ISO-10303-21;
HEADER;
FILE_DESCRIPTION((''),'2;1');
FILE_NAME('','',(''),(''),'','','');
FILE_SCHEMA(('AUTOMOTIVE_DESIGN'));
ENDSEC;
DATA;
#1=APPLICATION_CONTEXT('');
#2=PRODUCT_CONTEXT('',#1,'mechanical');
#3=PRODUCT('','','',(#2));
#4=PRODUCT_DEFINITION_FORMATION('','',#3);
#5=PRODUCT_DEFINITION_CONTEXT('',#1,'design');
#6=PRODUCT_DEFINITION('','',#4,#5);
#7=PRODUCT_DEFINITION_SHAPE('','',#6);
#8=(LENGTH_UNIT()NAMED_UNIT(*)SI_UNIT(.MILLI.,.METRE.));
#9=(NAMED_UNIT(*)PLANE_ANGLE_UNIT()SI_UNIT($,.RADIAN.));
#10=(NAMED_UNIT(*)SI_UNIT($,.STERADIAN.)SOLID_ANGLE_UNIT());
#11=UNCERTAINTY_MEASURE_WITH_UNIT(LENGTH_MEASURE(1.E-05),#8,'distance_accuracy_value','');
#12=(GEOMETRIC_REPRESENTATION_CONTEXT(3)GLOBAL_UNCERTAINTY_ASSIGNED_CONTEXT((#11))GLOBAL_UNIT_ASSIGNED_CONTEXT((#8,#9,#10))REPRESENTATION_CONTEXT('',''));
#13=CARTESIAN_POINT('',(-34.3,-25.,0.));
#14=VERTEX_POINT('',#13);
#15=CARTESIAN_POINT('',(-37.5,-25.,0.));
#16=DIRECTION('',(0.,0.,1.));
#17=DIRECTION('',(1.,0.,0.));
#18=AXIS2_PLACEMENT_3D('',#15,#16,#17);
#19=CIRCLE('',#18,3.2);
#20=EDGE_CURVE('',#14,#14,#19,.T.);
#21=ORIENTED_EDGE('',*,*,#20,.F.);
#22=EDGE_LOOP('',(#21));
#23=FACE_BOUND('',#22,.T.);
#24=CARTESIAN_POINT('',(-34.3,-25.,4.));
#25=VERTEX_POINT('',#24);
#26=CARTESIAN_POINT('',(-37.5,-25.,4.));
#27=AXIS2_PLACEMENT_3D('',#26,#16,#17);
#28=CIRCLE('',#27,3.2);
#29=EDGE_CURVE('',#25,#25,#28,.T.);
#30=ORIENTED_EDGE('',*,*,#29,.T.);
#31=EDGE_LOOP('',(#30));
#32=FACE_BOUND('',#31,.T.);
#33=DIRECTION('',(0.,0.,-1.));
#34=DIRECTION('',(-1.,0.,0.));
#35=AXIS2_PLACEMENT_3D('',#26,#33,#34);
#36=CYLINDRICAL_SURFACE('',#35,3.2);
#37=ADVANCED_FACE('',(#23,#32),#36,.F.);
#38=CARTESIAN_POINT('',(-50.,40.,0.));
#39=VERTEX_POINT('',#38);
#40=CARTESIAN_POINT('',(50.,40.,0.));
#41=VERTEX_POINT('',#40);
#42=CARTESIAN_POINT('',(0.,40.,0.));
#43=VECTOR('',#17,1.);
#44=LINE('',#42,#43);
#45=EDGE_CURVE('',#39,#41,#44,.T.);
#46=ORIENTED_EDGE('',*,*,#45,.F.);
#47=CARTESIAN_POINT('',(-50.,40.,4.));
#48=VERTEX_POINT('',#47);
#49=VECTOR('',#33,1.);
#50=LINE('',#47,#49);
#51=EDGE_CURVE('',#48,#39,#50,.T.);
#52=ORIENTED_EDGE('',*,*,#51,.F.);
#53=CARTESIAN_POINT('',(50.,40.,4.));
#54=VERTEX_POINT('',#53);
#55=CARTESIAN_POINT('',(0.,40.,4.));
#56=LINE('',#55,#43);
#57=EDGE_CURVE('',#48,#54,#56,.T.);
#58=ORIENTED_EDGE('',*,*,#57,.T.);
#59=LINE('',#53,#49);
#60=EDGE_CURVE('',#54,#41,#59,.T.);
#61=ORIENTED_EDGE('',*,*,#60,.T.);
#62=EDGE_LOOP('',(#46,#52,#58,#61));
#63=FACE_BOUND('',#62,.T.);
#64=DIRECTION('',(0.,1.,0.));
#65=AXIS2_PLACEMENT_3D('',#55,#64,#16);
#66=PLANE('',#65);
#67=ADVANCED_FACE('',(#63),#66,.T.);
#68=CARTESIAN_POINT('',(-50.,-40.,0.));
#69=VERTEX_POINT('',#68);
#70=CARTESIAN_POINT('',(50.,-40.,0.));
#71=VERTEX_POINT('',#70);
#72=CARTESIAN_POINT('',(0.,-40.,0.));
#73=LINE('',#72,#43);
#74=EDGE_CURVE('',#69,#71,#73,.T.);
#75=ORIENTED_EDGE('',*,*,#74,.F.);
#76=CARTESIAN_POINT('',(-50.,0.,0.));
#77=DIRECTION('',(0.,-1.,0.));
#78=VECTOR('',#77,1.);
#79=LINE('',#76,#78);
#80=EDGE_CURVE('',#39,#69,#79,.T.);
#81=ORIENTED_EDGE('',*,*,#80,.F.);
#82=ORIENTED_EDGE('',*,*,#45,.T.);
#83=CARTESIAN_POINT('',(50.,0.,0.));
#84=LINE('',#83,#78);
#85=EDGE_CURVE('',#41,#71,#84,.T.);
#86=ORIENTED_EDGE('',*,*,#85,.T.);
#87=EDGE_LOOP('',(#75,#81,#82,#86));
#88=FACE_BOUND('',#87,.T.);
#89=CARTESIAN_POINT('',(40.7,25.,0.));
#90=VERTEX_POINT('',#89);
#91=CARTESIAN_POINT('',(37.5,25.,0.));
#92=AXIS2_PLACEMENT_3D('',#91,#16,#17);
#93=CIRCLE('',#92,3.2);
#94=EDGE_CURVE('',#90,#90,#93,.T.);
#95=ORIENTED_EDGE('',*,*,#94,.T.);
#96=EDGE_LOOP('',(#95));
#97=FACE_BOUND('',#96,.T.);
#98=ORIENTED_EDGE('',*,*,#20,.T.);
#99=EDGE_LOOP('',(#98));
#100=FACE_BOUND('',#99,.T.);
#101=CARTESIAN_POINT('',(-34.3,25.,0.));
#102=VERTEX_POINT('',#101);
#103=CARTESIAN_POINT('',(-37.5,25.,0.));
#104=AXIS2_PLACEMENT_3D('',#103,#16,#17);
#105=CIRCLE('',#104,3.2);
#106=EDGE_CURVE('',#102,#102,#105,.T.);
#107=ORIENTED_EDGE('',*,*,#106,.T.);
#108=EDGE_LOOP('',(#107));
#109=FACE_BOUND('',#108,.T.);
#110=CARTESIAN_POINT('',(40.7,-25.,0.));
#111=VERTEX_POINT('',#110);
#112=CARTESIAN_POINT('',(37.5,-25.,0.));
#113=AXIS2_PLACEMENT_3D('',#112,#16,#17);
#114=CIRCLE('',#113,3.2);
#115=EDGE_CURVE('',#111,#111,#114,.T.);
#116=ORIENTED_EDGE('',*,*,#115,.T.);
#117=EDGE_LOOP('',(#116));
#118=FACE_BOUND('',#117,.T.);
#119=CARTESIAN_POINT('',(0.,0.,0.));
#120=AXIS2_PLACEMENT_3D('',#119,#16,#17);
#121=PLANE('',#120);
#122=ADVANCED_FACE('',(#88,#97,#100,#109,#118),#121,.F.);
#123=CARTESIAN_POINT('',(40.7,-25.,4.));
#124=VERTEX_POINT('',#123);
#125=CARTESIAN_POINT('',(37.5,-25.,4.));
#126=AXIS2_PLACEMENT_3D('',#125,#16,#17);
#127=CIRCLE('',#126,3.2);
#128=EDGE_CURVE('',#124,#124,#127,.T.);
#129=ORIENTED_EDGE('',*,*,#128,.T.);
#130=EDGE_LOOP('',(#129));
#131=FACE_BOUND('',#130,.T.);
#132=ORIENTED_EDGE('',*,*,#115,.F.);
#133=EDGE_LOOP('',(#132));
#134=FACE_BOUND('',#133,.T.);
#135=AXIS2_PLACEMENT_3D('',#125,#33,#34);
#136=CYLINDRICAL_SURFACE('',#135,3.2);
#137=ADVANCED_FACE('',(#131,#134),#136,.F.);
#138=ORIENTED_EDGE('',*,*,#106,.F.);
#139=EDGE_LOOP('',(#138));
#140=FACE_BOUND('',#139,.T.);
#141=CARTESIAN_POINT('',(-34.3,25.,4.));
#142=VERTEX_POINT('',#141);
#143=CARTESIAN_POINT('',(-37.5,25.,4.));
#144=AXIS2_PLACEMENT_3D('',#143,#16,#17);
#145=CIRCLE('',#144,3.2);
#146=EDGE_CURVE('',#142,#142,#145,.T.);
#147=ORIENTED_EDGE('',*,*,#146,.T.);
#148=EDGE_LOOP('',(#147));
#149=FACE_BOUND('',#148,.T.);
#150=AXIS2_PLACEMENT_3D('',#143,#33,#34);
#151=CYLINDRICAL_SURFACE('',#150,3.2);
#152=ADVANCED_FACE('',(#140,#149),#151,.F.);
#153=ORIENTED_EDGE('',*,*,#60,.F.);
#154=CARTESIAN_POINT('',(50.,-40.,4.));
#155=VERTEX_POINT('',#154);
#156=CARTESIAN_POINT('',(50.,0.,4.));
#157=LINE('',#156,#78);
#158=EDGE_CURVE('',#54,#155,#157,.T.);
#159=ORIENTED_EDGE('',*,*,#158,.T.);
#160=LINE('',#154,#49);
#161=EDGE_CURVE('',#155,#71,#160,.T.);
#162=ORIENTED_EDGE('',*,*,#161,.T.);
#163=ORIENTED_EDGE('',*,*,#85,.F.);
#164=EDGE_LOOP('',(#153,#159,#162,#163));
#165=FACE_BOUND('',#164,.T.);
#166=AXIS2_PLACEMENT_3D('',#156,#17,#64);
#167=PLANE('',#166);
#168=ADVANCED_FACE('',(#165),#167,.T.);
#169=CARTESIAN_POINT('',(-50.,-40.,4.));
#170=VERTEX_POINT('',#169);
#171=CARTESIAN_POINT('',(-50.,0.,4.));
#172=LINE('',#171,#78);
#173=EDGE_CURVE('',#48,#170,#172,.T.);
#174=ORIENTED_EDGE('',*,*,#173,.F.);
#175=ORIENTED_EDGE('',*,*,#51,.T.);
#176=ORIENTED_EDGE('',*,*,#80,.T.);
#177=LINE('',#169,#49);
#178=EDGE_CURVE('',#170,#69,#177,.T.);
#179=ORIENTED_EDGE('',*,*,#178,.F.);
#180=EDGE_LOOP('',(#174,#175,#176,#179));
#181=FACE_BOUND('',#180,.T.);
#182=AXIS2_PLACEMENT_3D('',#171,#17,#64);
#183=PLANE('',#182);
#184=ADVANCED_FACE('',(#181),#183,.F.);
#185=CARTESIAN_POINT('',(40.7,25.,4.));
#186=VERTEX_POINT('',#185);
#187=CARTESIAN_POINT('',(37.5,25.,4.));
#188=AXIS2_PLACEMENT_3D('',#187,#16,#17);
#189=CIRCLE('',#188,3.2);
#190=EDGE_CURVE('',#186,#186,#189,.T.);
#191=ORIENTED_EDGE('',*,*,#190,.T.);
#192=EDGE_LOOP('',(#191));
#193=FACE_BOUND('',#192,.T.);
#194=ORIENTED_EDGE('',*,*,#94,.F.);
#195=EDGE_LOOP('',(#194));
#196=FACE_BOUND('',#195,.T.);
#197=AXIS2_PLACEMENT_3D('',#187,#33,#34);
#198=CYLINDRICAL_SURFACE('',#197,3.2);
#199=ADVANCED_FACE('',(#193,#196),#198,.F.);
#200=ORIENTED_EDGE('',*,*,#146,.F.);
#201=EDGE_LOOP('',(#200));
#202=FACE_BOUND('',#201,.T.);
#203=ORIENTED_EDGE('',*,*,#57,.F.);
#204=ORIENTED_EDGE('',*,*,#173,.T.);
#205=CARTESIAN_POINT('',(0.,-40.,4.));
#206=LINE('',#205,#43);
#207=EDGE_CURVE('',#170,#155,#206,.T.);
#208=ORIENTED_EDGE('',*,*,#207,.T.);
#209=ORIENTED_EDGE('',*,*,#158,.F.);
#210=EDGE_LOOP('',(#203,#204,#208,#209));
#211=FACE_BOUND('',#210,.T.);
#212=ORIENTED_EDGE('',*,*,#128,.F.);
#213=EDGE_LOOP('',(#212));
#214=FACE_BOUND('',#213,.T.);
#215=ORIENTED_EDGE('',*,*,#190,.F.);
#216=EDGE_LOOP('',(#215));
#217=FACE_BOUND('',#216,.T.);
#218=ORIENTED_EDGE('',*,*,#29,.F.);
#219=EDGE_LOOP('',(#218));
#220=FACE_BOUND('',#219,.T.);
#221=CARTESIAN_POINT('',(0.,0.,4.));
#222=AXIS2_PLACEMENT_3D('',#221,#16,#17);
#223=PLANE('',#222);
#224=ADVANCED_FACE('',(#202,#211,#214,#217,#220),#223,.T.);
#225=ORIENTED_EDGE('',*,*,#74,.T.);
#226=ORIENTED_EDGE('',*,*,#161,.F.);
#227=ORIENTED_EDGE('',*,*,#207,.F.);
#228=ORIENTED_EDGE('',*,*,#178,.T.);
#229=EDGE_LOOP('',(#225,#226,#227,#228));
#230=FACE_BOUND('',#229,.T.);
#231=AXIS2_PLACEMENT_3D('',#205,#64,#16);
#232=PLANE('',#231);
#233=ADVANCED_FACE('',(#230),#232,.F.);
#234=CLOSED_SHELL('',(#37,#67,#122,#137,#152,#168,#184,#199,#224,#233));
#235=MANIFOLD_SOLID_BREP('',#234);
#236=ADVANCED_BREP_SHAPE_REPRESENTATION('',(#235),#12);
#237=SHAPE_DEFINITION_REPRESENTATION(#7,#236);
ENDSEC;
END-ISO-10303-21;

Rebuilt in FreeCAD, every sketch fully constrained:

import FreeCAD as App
import Part
import Sketcher

V = App.Vector
Q = App.Units.Quantity

doc = App.newDocument("Part")
body = doc.addObject("PartDesign::Body", "Body")

# Sketch on XY plane
sketch1 = doc.addObject("Sketcher::SketchObject", "Sketch")
body.addObject(sketch1)
sketch1.AttachmentSupport = (doc.XY_Plane, [""])
sketch1.MapMode = "FlatFace"
sketch1.addGeometry([
    Part.LineSegment(V(-50, 40, 0), V(-50, -40, 0)),  # 0
    Part.LineSegment(V(-50, -40, 0), V(50, -40, 0)),  # 1
    Part.LineSegment(V(50, -40, 0), V(50, 40, 0)),  # 2
    Part.LineSegment(V(50, 40, 0), V(-50, 40, 0)),  # 3
    Part.Circle(V(-37.5, -25, 0), V(0, 0, 1), 3.2),  # 4
    Part.Circle(V(37.5, -25, 0), V(0, 0, 1), 3.2),  # 5
    Part.Circle(V(-37.5, 25, 0), V(0, 0, 1), 3.2),  # 6
    Part.Circle(V(37.5, 25, 0), V(0, 0, 1), 3.2),  # 7
], False)
sketch1.addConstraint([
    Sketcher.Constraint("Coincident", 0, 2, 1, 1),
    Sketcher.Constraint("Coincident", 1, 2, 2, 1),
    Sketcher.Constraint("Coincident", 2, 2, 3, 1),
    Sketcher.Constraint("Coincident", 3, 2, 0, 1),
    Sketcher.Constraint("Vertical", 0),
    Sketcher.Constraint("Horizontal", 1),
    Sketcher.Constraint("Vertical", 2),
    Sketcher.Constraint("Horizontal", 3),
    Sketcher.Constraint("Equal", 4, 5),
    Sketcher.Constraint("Equal", 5, 6),
    Sketcher.Constraint("Equal", 6, 7),
    Sketcher.Constraint("Symmetric", 5, 3, 6, 3, -1, 1),
    Sketcher.Constraint("Symmetric", 4, 3, 7, 3, -1, 1),
    Sketcher.Constraint("Symmetric", 0, 2, 2, 2, -1, 1),
    Sketcher.Constraint("Symmetric", 4, 3, 5, 3, -2),
    Sketcher.Constraint("Diameter", 4, Q("6.4 mm")),
    Sketcher.Constraint("DistanceX", 1, 1, 1, 2, Q("100 mm")),
    Sketcher.Constraint("DistanceY", 0, 2, 0, 1, Q("80 mm")),
    Sketcher.Constraint("DistanceY", 4, 3, -1, 1, Q("25 mm")),
    Sketcher.Constraint("DistanceX", 4, 3, 5, 3, Q("75 mm")),
])
pad1 = doc.addObject("PartDesign::Pad", "Pad")
body.addObject(pad1)
pad1.Profile = sketch1
pad1.Length = 4

doc.recompute()
